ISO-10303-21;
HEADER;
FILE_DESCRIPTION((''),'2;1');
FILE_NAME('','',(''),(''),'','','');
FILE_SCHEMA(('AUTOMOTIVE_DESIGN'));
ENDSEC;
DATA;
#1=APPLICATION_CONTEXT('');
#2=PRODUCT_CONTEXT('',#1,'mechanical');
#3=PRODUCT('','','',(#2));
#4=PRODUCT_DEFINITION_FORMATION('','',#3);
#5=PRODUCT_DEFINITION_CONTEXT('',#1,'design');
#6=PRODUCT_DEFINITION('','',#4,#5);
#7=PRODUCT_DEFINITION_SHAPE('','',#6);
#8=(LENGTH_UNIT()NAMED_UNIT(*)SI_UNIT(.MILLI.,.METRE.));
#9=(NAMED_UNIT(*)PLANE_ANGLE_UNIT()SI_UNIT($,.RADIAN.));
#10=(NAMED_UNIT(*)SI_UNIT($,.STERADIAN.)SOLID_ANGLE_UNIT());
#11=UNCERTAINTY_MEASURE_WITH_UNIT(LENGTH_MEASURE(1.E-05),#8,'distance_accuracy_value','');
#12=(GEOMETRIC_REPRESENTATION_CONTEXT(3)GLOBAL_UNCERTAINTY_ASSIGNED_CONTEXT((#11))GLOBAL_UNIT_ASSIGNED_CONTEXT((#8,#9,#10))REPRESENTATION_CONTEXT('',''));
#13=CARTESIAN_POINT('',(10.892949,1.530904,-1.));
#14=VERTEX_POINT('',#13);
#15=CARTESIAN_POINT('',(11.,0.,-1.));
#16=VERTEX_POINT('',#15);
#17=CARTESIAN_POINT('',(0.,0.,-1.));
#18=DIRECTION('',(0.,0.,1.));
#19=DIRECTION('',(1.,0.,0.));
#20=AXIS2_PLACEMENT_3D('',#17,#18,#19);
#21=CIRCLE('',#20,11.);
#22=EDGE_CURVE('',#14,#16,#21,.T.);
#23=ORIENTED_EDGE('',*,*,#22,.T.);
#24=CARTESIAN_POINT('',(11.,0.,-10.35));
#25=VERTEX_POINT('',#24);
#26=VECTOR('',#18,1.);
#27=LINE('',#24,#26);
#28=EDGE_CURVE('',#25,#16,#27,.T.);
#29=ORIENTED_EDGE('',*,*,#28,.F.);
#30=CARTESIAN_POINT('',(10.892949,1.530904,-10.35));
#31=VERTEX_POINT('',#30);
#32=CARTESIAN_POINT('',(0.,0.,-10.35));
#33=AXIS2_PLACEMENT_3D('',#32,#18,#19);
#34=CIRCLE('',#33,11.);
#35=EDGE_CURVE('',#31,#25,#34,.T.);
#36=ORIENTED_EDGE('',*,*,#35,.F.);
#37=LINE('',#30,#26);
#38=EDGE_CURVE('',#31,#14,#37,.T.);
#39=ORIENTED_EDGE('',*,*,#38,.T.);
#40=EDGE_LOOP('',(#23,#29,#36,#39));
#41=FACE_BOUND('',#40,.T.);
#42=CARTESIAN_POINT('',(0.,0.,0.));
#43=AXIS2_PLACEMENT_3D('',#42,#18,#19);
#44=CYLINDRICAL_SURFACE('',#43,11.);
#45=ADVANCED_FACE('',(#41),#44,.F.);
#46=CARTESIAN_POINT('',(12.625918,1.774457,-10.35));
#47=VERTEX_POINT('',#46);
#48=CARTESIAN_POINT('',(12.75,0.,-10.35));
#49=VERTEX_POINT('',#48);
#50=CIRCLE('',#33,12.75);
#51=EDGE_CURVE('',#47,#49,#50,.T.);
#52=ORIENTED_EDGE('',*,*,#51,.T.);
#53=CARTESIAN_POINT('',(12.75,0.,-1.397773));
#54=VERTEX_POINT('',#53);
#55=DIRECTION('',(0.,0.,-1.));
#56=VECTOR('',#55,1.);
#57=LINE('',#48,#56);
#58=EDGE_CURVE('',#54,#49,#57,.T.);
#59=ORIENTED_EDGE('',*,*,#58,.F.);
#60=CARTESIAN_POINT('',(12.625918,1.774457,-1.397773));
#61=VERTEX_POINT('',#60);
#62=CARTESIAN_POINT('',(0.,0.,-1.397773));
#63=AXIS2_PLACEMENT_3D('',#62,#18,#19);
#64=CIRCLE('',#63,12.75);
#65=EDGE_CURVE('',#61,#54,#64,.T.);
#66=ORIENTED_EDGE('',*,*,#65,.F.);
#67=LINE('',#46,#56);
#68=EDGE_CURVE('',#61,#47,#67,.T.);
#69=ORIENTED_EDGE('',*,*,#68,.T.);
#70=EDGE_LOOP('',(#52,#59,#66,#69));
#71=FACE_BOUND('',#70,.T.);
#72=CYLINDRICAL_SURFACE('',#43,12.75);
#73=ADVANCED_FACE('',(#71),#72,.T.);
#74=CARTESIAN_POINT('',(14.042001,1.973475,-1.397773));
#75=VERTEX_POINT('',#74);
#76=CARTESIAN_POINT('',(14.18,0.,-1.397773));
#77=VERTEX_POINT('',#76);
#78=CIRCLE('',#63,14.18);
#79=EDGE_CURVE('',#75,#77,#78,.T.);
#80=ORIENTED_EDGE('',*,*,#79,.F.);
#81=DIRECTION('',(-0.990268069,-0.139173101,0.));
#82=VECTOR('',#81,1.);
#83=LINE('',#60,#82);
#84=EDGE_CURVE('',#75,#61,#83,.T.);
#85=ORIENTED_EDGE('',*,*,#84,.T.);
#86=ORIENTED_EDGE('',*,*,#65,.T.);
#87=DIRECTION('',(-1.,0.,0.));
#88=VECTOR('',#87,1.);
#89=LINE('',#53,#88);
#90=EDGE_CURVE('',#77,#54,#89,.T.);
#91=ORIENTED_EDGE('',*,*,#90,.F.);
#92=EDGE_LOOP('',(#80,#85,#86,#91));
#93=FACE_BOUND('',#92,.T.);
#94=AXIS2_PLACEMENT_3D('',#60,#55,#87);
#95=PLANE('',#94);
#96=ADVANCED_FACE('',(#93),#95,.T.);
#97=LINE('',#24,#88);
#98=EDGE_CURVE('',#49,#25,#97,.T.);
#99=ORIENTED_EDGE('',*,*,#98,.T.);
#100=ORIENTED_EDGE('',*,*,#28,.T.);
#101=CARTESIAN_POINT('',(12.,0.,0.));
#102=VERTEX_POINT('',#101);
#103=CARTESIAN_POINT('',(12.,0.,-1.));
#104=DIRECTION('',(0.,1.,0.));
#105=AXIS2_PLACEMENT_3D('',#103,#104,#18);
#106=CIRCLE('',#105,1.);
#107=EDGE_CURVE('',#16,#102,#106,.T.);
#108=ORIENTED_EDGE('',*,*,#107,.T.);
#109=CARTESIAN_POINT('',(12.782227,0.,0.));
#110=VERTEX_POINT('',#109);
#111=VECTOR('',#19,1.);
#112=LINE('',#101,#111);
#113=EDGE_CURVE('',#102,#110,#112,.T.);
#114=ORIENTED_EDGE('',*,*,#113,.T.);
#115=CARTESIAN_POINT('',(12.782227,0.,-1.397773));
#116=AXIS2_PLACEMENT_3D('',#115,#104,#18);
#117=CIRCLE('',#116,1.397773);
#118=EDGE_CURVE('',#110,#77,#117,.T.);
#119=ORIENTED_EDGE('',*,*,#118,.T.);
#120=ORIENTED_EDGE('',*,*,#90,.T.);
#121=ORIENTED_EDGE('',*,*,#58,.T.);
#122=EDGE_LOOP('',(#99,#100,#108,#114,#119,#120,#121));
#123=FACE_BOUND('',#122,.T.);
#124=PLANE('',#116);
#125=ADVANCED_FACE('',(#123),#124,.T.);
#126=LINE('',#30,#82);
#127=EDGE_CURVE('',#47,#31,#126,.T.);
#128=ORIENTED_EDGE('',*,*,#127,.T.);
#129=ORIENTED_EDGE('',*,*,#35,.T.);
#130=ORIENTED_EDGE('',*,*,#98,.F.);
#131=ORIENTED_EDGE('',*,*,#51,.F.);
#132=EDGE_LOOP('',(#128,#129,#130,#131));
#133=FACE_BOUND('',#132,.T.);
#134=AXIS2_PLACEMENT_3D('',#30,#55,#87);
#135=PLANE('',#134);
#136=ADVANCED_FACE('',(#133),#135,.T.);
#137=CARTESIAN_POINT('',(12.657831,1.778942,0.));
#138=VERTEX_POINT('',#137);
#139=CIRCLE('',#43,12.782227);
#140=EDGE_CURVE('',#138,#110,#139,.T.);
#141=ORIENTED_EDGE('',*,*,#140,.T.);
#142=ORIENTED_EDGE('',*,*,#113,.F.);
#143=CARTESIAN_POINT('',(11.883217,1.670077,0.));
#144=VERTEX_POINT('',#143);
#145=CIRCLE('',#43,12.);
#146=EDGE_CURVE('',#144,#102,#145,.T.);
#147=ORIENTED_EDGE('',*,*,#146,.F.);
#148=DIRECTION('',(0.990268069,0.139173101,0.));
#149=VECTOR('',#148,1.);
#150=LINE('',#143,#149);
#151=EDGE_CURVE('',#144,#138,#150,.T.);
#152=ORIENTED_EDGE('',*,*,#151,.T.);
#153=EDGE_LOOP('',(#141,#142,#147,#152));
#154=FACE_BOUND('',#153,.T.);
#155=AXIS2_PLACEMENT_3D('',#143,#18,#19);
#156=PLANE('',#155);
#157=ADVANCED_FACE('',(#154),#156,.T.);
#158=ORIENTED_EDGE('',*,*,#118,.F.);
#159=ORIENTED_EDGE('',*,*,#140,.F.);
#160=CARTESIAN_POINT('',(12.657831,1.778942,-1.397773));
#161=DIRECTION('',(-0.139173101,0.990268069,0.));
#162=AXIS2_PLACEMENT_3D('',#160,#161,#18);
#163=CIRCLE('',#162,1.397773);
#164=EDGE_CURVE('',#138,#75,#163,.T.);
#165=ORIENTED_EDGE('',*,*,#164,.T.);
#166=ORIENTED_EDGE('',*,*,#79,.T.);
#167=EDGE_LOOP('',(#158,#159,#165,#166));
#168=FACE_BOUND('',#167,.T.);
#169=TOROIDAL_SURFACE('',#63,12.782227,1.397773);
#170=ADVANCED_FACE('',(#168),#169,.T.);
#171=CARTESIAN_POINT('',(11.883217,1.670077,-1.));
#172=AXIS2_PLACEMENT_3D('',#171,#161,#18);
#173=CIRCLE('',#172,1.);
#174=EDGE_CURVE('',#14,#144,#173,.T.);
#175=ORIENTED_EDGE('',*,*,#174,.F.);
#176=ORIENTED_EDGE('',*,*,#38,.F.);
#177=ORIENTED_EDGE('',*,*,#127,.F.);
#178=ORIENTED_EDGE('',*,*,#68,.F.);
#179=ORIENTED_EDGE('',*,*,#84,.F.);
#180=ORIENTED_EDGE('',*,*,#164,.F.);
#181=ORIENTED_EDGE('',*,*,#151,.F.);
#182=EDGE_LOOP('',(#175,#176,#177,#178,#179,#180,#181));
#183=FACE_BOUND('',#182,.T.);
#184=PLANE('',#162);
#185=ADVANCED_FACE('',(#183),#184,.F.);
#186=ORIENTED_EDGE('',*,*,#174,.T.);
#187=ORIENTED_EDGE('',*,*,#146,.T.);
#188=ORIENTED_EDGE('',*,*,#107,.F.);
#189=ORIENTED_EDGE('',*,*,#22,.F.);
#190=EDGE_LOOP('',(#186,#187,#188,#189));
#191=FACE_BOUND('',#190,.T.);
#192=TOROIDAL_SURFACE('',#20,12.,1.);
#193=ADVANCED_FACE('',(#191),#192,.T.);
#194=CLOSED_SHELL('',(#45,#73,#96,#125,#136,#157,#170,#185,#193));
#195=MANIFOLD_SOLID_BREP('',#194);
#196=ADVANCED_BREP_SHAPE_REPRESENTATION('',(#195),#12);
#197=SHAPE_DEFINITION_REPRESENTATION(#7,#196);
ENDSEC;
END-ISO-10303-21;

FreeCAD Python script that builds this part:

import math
import FreeCAD as App
import Part
import Sketcher
from FreeCAD import Vector

doc = App.newDocument("Part")
body = doc.addObject("PartDesign::Body", "Body")

# Sketch on XZ plane
sketch1 = body.newObject("Sketcher::SketchObject", "Sketch")
sketch1.AttachmentSupport = (doc.getObject("XZ_Plane"), [""])
sketch1.MapMode = "FlatFace"
sketch1.addGeometry([
    Part.LineSegment(Vector(11, -10.35, 0), Vector(11, -1, 0)),  # 0
    Part.ArcOfCircle(Part.Circle(Vector(12, -1, 0), Vector(0, 0, 1), 1), math.radians(90), math.radians(180)),  # 1
    Part.LineSegment(Vector(12, 0, 0), Vector(12.782227, 0, 0)),  # 2
    Part.ArcOfCircle(Part.Circle(Vector(12.782227, -1.397773, 0), Vector(0, 0, 1), 1.397773), math.radians(0), math.radians(90)),  # 3
    Part.LineSegment(Vector(14.18, -1.397773, 0), Vector(12.75, -1.397773, 0)),  # 4
    Part.LineSegment(Vector(12.75, -1.397773, 0), Vector(12.75, -10.35, 0)),  # 5
    Part.LineSegment(Vector(12.75, -10.35, 0), Vector(11, -10.35, 0)),  # 6
], False)
sketch1.addConstraint([
    Sketcher.Constraint("Tangent", 0, 2, 1, 2),
    Sketcher.Constraint("Tangent", 1, 1, 2, 1),
    Sketcher.Constraint("Tangent", 2, 2, 3, 2),
    Sketcher.Constraint("Coincident", 3, 1, 4, 1),
    Sketcher.Constraint("Coincident", 4, 2, 5, 1),
    Sketcher.Constraint("Coincident", 5, 2, 6, 1),
    Sketcher.Constraint("Coincident", 6, 2, 0, 1),
    Sketcher.Constraint("Vertical", 0),
    Sketcher.Constraint("Horizontal", 2),
    Sketcher.Constraint("Horizontal", 4),
    Sketcher.Constraint("Vertical", 5),
    Sketcher.Constraint("Horizontal", 6),
    Sketcher.Constraint("PointOnObject", 1, 1, -1),
    Sketcher.Constraint("Radius", 1, 1.0),
    Sketcher.Constraint("DistanceX", -1, 1, 1, 3, 12.0),
    Sketcher.Constraint("DistanceX", 4, 2, 4, 1, 1.43),
    Sketcher.Constraint("DistanceX", 6, 2, 6, 1, 1.75),
    Sketcher.Constraint("DistanceY", 0, 1, 0, 2, 9.35),
    Sketcher.Constraint("Radius", 3, 1.397773),
    Sketcher.Constraint("DistanceY", 5, 2, 5, 1, 8.952227),
])
revolution = body.newObject("PartDesign::Revolution", "Revolution")
revolution.Profile = sketch1
revolution.ReferenceAxis = (sketch1, ["V_Axis"])
revolution.Angle = 352
revolution.Reversed = True

doc.recompute()
